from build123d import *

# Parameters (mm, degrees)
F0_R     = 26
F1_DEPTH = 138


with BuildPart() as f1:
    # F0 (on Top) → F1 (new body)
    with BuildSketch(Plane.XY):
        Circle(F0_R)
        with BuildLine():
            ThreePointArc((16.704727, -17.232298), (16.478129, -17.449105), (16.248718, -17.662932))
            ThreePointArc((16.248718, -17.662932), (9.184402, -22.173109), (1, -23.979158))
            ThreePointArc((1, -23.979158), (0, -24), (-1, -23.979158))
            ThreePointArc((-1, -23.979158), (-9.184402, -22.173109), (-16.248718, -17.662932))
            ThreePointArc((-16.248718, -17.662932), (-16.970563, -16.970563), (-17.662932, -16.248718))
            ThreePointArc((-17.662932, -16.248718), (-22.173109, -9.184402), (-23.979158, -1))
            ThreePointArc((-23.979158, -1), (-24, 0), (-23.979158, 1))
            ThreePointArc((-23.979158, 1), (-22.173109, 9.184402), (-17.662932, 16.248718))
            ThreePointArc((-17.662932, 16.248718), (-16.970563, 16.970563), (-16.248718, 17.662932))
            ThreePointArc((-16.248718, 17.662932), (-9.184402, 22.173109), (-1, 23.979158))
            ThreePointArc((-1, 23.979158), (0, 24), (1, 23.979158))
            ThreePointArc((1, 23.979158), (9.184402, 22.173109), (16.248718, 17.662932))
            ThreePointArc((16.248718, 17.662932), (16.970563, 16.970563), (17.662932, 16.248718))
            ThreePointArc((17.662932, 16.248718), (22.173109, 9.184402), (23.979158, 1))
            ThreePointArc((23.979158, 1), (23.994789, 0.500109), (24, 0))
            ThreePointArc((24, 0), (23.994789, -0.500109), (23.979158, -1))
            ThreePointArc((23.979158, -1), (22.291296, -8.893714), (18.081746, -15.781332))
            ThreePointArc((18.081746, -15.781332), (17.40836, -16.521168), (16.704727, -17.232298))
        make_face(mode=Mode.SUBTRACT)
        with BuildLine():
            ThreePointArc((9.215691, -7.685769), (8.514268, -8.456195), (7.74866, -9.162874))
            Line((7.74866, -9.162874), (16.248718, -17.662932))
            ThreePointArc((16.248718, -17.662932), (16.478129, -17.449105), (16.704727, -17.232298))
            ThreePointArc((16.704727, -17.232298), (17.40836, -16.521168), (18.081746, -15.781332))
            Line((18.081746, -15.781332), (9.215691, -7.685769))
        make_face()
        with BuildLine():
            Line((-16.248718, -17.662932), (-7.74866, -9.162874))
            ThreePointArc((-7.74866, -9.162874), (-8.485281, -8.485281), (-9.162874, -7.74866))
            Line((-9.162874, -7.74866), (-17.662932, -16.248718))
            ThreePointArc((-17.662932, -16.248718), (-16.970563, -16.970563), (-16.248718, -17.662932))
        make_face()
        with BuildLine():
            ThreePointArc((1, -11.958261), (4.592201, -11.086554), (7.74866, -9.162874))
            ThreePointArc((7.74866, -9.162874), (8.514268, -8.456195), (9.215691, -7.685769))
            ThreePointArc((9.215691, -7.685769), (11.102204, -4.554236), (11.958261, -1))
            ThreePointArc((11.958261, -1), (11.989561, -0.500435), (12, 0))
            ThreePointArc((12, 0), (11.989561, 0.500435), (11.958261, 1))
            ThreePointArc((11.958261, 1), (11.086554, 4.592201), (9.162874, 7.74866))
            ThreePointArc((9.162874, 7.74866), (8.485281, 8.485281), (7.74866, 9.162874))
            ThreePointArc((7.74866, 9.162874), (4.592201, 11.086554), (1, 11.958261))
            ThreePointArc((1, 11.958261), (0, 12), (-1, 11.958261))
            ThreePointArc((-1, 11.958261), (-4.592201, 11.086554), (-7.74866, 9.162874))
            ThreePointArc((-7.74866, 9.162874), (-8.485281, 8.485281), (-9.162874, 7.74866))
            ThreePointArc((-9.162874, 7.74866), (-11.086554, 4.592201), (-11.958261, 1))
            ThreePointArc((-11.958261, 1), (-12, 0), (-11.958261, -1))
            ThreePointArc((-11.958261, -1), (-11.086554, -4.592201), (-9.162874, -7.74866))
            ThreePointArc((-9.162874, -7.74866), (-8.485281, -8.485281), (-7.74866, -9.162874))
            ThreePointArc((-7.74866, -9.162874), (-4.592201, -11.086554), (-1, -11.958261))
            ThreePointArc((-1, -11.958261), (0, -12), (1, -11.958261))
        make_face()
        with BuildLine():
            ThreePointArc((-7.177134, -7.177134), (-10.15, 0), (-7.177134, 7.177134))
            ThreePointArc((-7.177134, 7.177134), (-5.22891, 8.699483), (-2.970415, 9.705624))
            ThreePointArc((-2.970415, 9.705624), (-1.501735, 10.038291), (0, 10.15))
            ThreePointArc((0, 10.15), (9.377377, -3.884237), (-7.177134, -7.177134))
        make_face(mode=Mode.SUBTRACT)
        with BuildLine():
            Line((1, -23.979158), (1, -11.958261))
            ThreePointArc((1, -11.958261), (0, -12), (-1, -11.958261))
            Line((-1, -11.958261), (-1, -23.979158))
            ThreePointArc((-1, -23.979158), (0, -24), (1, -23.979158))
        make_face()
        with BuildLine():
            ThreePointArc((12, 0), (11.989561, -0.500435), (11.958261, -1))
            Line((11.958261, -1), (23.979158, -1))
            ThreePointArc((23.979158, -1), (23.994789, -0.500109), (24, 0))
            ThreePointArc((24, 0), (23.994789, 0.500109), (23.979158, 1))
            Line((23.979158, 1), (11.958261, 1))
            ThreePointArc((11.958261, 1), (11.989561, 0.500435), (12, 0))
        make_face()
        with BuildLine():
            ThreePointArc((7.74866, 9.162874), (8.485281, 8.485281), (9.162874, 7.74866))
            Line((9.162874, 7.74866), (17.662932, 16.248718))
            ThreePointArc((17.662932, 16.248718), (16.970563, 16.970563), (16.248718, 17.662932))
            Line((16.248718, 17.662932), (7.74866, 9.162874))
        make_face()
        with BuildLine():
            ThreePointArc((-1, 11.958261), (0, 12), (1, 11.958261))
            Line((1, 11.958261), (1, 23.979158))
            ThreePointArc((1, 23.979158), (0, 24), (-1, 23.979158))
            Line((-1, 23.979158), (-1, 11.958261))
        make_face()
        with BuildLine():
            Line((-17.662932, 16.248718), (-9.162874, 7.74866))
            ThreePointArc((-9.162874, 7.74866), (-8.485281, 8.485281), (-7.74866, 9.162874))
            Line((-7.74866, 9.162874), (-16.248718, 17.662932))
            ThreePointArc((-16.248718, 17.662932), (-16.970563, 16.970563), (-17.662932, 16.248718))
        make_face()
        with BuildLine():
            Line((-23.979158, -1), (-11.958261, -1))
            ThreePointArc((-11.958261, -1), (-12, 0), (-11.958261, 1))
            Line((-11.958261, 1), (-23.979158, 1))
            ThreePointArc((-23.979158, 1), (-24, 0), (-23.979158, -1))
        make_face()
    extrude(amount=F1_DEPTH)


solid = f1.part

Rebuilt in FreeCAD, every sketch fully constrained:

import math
import FreeCAD as App
import Part
import Sketcher

V = App.Vector
Q = App.Units.Quantity

doc = App.newDocument("Part")
body = doc.addObject("PartDesign::Body", "Body")

# Sketch on XY plane
sketch1 = body.newObject("Sketcher::SketchObject", "Sketch")
sketch1.AttachmentSupport = (doc.getObject("XY_Plane"), [""])
sketch1.MapMode = "FlatFace"
sketch1.addGeometry(Part.Circle(V(0, 0, 0), V(0, 0, 1), 26), False)
sketch1.addGeometry(Part.ArcOfCircle(Part.Circle(V(0.000004, 0.000007, 0), V(0, 0, 1), 12.000008), math.radians(-130.219799), math.radians(-94.780208)), False)
sketch1.addGeometry(Part.LineSegment(V(-1, -11.958261, 0), V(-1, -23.979158, 0)), False)
sketch1.addGeometry(Part.ArcOfCircle(Part.Circle(V(0.000001, 0.000002, 0), V(0, 0, 1), 24.000003), math.radians(-132.611983), math.radians(-92.388019)), False)
sketch1.addGeometry(Part.LineSegment(V(-16.248718, -17.662932, 0), V(-7.74866, -9.162874, 0)), False)
sketch1.addGeometry(Part.ArcOfCircle(Part.Circle(V(0, 0, 0), V(0, 0, 1), 10.15), math.radians(-134.999999), math.radians(89.999999)), False)
sketch1.addGeometry(Part.ArcOfCircle(Part.Circle(V(0.000001, 0, 0), V(0, 0, 1), 10.150001), math.radians(135.000003), math.radians(224.999997)), False)
sketch1.addGeometry(Part.ArcOfCircle(Part.Circle(V(-0.000001, 0.000001, 0), V(0, 0, 1), 10.149999), math.radians(107.016775), math.radians(135)), False)
sketch1.addGeometry(Part.ArcOfCircle(Part.Circle(V(0.000004, -0.000031, 0), V(0, 0, 1), 10.150031), math.radians(90.000024), math.radians(107.016749)), False)
sketch1.addGeometry(Part.ArcOfCircle(Part.Circle(V(-0.000004, 0.000007, 0), V(0, 0, 1), 12.000008), math.radians(-85.219792), math.radians(-49.780201)), False)
sketch1.addGeometry(Part.LineSegment(V(7.74866, -9.162874, 0), V(16.248718, -17.662932, 0)), False)
sketch1.addGeometry(Part.ArcOfCircle(Part.Circle(V(-0.000001, 0.000002, 0), V(0, 0, 1), 24.000003), math.radians(-87.611981), math.radians(-47.388017)), False)
sketch1.addGeometry(Part.LineSegment(V(1, -23.979158, 0), V(1, -11.958261, 0)), False)
sketch1.addGeometry(Part.ArcOfCircle(Part.Circle(V(0.00001, -0.000003, 0), V(0, 0, 1), 23.99999), math.radians(-41.113719), math.radians(-2.38801)), False)
sketch1.addGeometry(Part.LineSegment(V(18.081746, -15.781332, 0), V(9.215691, -7.685769, 0)), False)
sketch1.addGeometry(Part.ArcOfCircle(Part.Circle(V(-0.000006, 0.000002, 0), V(0, 0, 1), 12.000006), math.radians(-39.827668), math.radians(-4.780201)), False)
sketch1.addGeometry(Part.LineSegment(V(11.958261, -1, 0), V(23.979158, -1, 0)), False)
sketch1.addGeometry(Part.ArcOfCircle(Part.Circle(V(-0.000007, -0.000004, 0), V(0, 0, 1), 12.000008), math.radians(4.780208), math.radians(40.219799)), False)
sketch1.addGeometry(Part.LineSegment(V(9.162874, 7.74866, 0), V(17.662932, 16.248718, 0)), False)
sketch1.addGeometry(Part.ArcOfCircle(Part.Circle(V(-0.000002, -0.000001, 0), V(0, 0, 1), 24.000003), math.radians(2.388019), math.radians(42.611983)), False)
sketch1.addGeometry(Part.LineSegment(V(23.979158, 1, 0), V(11.958261, 1, 0)), False)
sketch1.addGeometry(Part.ArcOfCircle(Part.Circle(V(-0.000004, -0.000007, 0), V(0, 0, 1), 12.000008), math.radians(49.780201), math.radians(85.219792)), False)
sketch1.addGeometry(Part.LineSegment(V(1, 11.958261, 0), V(1, 23.979158, 0)), False)
sketch1.addGeometry(Part.ArcOfCircle(Part.Circle(V(-0.000001, -0.000002, 0), V(0, 0, 1), 24.000003), math.radians(47.388017), math.radians(87.611981)), False)
sketch1.addGeometry(Part.LineSegment(V(16.248718, 17.662932, 0), V(7.74866, 9.162874, 0)), False)
sketch1.addGeometry(Part.ArcOfCircle(Part.Circle(V(0.000004, -0.000007, 0), V(0, 0, 1), 12.000008), math.radians(94.780208), math.radians(130.219799)), False)
sketch1.addGeometry(Part.LineSegment(V(-7.74866, 9.162874, 0), V(-16.248718, 17.662932, 0)), False)
sketch1.addGeometry(Part.ArcOfCircle(Part.Circle(V(0.000001, -0.000002, 0), V(0, 0, 1), 24.000003), math.radians(92.388019), math.radians(132.611983)), False)
sketch1.addGeometry(Part.LineSegment(V(-1, 23.979158, 0), V(-1, 11.958261, 0)), False)
sketch1.addGeometry(Part.ArcOfCircle(Part.Circle(V(0.000007, -0.000004, 0), V(0, 0, 1), 12.000008), math.radians(139.780201), math.radians(175.219792)), False)
sketch1.addGeometry(Part.LineSegment(V(-11.958261, 1, 0), V(-23.979158, 1, 0)), False)
sketch1.addGeometry(Part.ArcOfCircle(Part.Circle(V(0.000002, -0.000001, 0), V(0, 0, 1), 24.000003), math.radians(137.388017), math.radians(177.611981)), False)
sketch1.addGeometry(Part.LineSegment(V(-17.662932, 16.248718, 0), V(-9.162874, 7.74866, 0)), False)
sketch1.addGeometry(Part.ArcOfCircle(Part.Circle(V(0.000007, 0.000004, 0), V(0, 0, 1), 12.000008), math.radians(-175.219792), math.radians(-139.780201)), False)
sketch1.addGeometry(Part.LineSegment(V(-9.162874, -7.74866, 0), V(-17.662932, -16.248718, 0)), False)
sketch1.addGeometry(Part.ArcOfCircle(Part.Circle(V(0.000002, 0.000001, 0), V(0, 0, 1), 24.000003), math.radians(-177.611981), math.radians(-137.388017)), False)
sketch1.addGeometry(Part.LineSegment(V(-23.979158, -1, 0), V(-11.958261, -1, 0)), False)
sketch1.addConstraint(Sketcher.Constraint("Coincident", 1, 2, 2, 1))
sketch1.addConstraint(Sketcher.Constraint("Coincident", 2, 2, 3, 2))
sketch1.addConstraint(Sketcher.Constraint("Coincident", 3, 1, 4, 1))
sketch1.addConstraint(Sketcher.Constraint("Coincident", 4, 2, 1, 1))
sketch1.addConstraint(Sketcher.Constraint("Coincident", 5, 1, 6, 2))
sketch1.addConstraint(Sketcher.Constraint("Coincident", 6, 1, 7, 2))
sketch1.addConstraint(Sketcher.Constraint("Coincident", 7, 1, 8, 2))
sketch1.addConstraint(Sketcher.Constraint("Coincident", 8, 1, 5, 2))
sketch1.addConstraint(Sketcher.Constraint("Coincident", 9, 2, 10, 1))
sketch1.addConstraint(Sketcher.Constraint("Coincident", 10, 2, 11, 2))
sketch1.addConstraint(Sketcher.Constraint("Coincident", 11, 1, 12, 1))
sketch1.addConstraint(Sketcher.Constraint("Coincident", 12, 2, 9, 1))
sketch1.addConstraint(Sketcher.Constraint("Coincident", 13, 1, 14, 1))
sketch1.addConstraint(Sketcher.Constraint("Coincident", 14, 2, 15, 1))
sketch1.addConstraint(Sketcher.Constraint("Coincident", 15, 2, 16, 1))
sketch1.addConstraint(Sketcher.Constraint("Coincident", 16, 2, 13, 2))
sketch1.addConstraint(Sketcher.Constraint("Coincident", 17, 2, 18, 1))
sketch1.addConstraint(Sketcher.Constraint("Coincident", 18, 2, 19, 2))
sketch1.addConstraint(Sketcher.Constraint("Coincident", 19, 1, 20, 1))
sketch1.addConstraint(Sketcher.Constraint("Coincident", 20, 2, 17, 1))
sketch1.addConstraint(Sketcher.Constraint("Coincident", 21, 2, 22, 1))
sketch1.addConstraint(Sketcher.Constraint("Coincident", 22, 2, 23, 2))
sketch1.addConstraint(Sketcher.Constraint("Coincident", 23, 1, 24, 1))
sketch1.addConstraint(Sketcher.Constraint("Coincident", 24, 2, 21, 1))
sketch1.addConstraint(Sketcher.Constraint("Coincident", 25, 2, 26, 1))
sketch1.addConstraint(Sketcher.Constraint("Coincident", 26, 2, 27, 2))
sketch1.addConstraint(Sketcher.Constraint("Coincident", 27, 1, 28, 1))
sketch1.addConstraint(Sketcher.Constraint("Coincident", 28, 2, 25, 1))
sketch1.addConstraint(Sketcher.Constraint("Coincident", 29, 2, 30, 1))
sketch1.addConstraint(Sketcher.Constraint("Coincident", 30, 2, 31, 2))
sketch1.addConstraint(Sketcher.Constraint("Coincident", 31, 1, 32, 1))
sketch1.addConstraint(Sketcher.Constraint("Coincident", 32, 2, 29, 1))
sketch1.addConstraint(Sketcher.Constraint("Coincident", 33, 2, 34, 1))
sketch1.addConstraint(Sketcher.Constraint("Coincident", 34, 2, 35, 2))
sketch1.addConstraint(Sketcher.Constraint("Coincident", 35, 1, 36, 1))
sketch1.addConstraint(Sketcher.Constraint("Coincident", 36, 2, 33, 1))
sketch1.addConstraint(Sketcher.Constraint("Vertical", 2))
sketch1.addConstraint(Sketcher.Constraint("Vertical", 12))
sketch1.addConstraint(Sketcher.Constraint("Horizontal", 16))
sketch1.addConstraint(Sketcher.Constraint("Horizontal", 20))
sketch1.addConstraint(Sketcher.Constraint("Vertical", 22))
sketch1.addConstraint(Sketcher.Constraint("Vertical", 28))
sketch1.addConstraint(Sketcher.Constraint("Horizontal", 30))
sketch1.addConstraint(Sketcher.Constraint("Horizontal", 36))
sketch1.addConstraint(Sketcher.Constraint("Coincident", 0, 3, -1, 1))
sketch1.addConstraint(Sketcher.Constraint("Coincident", 1, 3, -1, 1))
sketch1.addConstraint(Sketcher.Constraint("Coincident", 3, 3, -1, 1))
sketch1.addConstraint(Sketcher.Constraint("Coincident", 5, 3, -1, 1))
sketch1.addConstraint(Sketcher.Constraint("Coincident", 6, 3, -1, 1))
sketch1.addConstraint(Sketcher.Constraint("Coincident", 7, 3, -1, 1))
sketch1.addConstraint(Sketcher.Constraint("Coincident", 9, 3, -1, 1))
sketch1.addConstraint(Sketcher.Constraint("Coincident", 11, 3, -1, 1))
sketch1.addConstraint(Sketcher.Constraint("Coincident", 15, 3, -1, 1))
sketch1.addConstraint(Sketcher.Constraint("Coincident", 17, 3, -1, 1))
sketch1.addConstraint(Sketcher.Constraint("Coincident", 19, 3, -1, 1))
sketch1.addConstraint(Sketcher.Constraint("Coincident", 21, 3, -1, 1))
sketch1.addConstraint(Sketcher.Constraint("Coincident", 23, 3, -1, 1))
sketch1.addConstraint(Sketcher.Constraint("Coincident", 25, 3, -1, 1))
sketch1.addConstraint(Sketcher.Constraint("Coincident", 27, 3, -1, 1))
sketch1.addConstraint(Sketcher.Constraint("Coincident", 29, 3, -1, 1))
sketch1.addConstraint(Sketcher.Constraint("Coincident", 31, 3, -1, 1))
sketch1.addConstraint(Sketcher.Constraint("Coincident", 33, 3, -1, 1))
sketch1.addConstraint(Sketcher.Constraint("Coincident", 35, 3, -1, 1))
sketch1.addConstraint(Sketcher.Constraint("Coincident", 13, 3, 3, 3))
sketch1.addConstraint(Sketcher.Constraint("PointOnObject", 8, 1, -2))
sketch1.addConstraint(Sketcher.Constraint("Diameter", 0, Q("52 mm")))
sketch1.addConstraint(Sketcher.Constraint("Radius", 5, Q("10.15 mm")))
sketch1.addConstraint(Sketcher.Constraint("DistanceX", 1, 2, -1, 1, Q("1 mm")))
sketch1.addConstraint(Sketcher.Constraint("DistanceX", -1, 1, 11, 1, Q("1 mm")))
sketch1.addConstraint(Sketcher.Constraint("DistanceY", 15, 2, -1, 1, Q("1 mm")))
sketch1.addConstraint(Sketcher.Constraint("DistanceY", -1, 1, 19, 1, Q("1 mm")))
sketch1.addConstraint(Sketcher.Constraint("DistanceX", -1, 1, 21, 2, Q("1 mm")))
sketch1.addConstraint(Sketcher.Constraint("DistanceX", 27, 1, -1, 1, Q("1 mm")))
sketch1.addConstraint(Sketcher.Constraint("DistanceY", -1, 1, 29, 2, Q("1 mm")))
sketch1.addConstraint(Sketcher.Constraint("DistanceY", 35, 1, -1, 1, Q("1 mm")))
sketch1.addConstraint(Sketcher.Constraint("Radius", 8, Q("10.150031 mm")))
sketch1.addConstraint(Sketcher.Constraint("Radius", 13, Q("23.99999 mm")))
sketch1.addConstraint(Sketcher.Constraint("Radius", 1, Q("12.000008 mm")))
sketch1.addConstraint(Sketcher.Constraint("Radius", 3, Q("24.000003 mm")))
sketch1.addConstraint(Sketcher.Constraint("Radius", 9, Q("12.000008 mm")))
sketch1.addConstraint(Sketcher.Constraint("Radius", 11, Q("24.000003 mm")))
sketch1.addConstraint(Sketcher.Constraint("Radius", 15, Q("12.000006 mm")))
sketch1.addConstraint(Sketcher.Constraint("Radius", 17, Q("12.000008 mm")))
sketch1.addConstraint(Sketcher.Constraint("Radius", 19, Q("24.000003 mm")))
sketch1.addConstraint(Sketcher.Constraint("Radius", 21, Q("12.000008 mm")))
sketch1.addConstraint(Sketcher.Constraint("Radius", 23, Q("24.000003 mm")))
sketch1.addConstraint(Sketcher.Constraint("Radius", 25, Q("12.000008 mm")))
sketch1.addConstraint(Sketcher.Constraint("Radius", 27, Q("24.000003 mm")))
sketch1.addConstraint(Sketcher.Constraint("Radius", 29, Q("12.000008 mm")))
sketch1.addConstraint(Sketcher.Constraint("Radius", 31, Q("24.000003 mm")))
sketch1.addConstraint(Sketcher.Constraint("Radius", 33, Q("12.000008 mm")))
sketch1.addConstraint(Sketcher.Constraint("Radius", 35, Q("24.000003 mm")))
sketch1.addConstraint(Sketcher.Constraint("DistanceY", 3, 1, 8, 3, Q("17.662901 mm")))
sketch1.addConstraint(Sketcher.Constraint("DistanceY", 10, 2, 8, 3, Q("17.662901 mm")))
sketch1.addConstraint(Sketcher.Constraint("DistanceY", 10, 2, 13, 1, Q("1.8816 mm")))
sketch1.addConstraint(Sketcher.Constraint("DistanceX", 9, 2, 15, 2, Q("4.209601 mm")))
sketch1.addConstraint(Sketcher.Constraint("DistanceY", 17, 2, 21, 2, Q("4.209601 mm")))
sketch1.addConstraint(Sketcher.Constraint("DistanceX", 24, 2, 20, 2, Q("4.209601 mm")))
sketch1.addConstraint(Sketcher.Constraint("DistanceY", 6, 1, 26, 2, Q("10.485798 mm")))
sketch1.addConstraint(Sketcher.Constraint("DistanceX", 29, 2, 25, 2, Q("4.209601 mm")))
sketch1.addConstraint(Sketcher.Constraint("DistanceX", 29, 2, 4, 2, Q("4.209601 mm")))
sketch1.addConstraint(Sketcher.Constraint("DistanceX", 31, 1, 6, 1, Q("10.485798 mm")))
sketch1.addConstraint(Sketcher.Constraint("DistanceY", 32, 2, 28, 2, Q("4.209601 mm")))
sketch1.addConstraint(Sketcher.Constraint("DistanceY", 1, 2, 33, 2, Q("4.209601 mm")))
sketch1.addConstraint(Sketcher.Constraint("DistanceX", 34, 2, 5, 1, Q("10.485798 mm")))
sketch1.addConstraint(Sketcher.Constraint("DistanceX", -1, 1, 14, 2, Q("9.215691 mm")))
sketch1.addConstraint(Sketcher.Constraint("DistanceY", -1, 1, 18, 2, Q("16.248718 mm")))
sketch1.addConstraint(Sketcher.Constraint("DistanceX", -1, 1, 23, 1, Q("16.248718 mm")))
sketch1.addConstraint(Sketcher.Constraint("DistanceX", 26, 2, -1, 1, Q("16.248718 mm")))
sketch1.addConstraint(Sketcher.Constraint("DistanceY", 34, 2, -1, 1, Q("16.248718 mm")))
sketch1.addConstraint(Sketcher.Constraint("DistanceX", 6, 1, 7, 1, Q("4.206719 mm")))
pad1 = body.newObject("PartDesign::Pad", "Pad")
pad1.Profile = sketch1
pad1.Length = 138

doc.recompute()
